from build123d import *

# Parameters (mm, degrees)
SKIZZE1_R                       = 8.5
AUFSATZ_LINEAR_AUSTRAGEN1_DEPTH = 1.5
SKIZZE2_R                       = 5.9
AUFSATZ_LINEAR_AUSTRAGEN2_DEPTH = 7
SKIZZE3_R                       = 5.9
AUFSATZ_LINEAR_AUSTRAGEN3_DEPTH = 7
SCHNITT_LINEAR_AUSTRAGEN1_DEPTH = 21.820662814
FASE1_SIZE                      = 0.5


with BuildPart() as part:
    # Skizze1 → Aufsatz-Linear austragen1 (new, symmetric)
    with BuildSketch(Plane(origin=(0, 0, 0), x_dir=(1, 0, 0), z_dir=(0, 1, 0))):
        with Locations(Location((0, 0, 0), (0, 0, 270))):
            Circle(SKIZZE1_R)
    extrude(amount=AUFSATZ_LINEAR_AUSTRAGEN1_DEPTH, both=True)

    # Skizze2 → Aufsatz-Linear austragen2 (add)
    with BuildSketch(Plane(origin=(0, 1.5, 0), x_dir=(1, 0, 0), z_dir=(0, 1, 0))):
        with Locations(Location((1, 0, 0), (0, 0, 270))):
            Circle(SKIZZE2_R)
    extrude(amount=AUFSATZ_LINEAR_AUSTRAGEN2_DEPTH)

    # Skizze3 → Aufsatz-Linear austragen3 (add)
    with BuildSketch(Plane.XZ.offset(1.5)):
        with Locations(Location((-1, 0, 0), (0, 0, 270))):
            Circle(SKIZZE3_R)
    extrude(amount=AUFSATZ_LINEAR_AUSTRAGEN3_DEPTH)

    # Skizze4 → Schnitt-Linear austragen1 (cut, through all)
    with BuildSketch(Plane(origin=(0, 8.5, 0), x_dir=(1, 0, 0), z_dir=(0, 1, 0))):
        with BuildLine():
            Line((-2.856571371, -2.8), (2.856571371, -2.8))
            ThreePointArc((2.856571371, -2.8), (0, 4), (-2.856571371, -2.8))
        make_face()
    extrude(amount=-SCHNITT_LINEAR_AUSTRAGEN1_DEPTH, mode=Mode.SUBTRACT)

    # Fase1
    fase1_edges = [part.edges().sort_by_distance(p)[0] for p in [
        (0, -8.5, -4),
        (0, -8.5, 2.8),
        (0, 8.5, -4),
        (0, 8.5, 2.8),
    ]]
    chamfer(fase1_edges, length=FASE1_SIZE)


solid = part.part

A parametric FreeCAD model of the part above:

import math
import FreeCAD as App
import Part
import Sketcher
from FreeCAD import Vector


def edges_at(feature, points):
    """Names of the edges that pass closest to the given points."""
    edges = feature.Shape.Edges
    near = lambda p: min(range(len(edges)), key=lambda i: edges[i].distToShape(Part.Vertex(*p))[0])
    return sorted({f"Edge{near(p) + 1}" for p in points})

doc = App.newDocument("Part")
body = doc.addObject("PartDesign::Body", "Body")

# Sketch on XZ plane
sketch1 = body.newObject("Sketcher::SketchObject", "Sketch")
sketch1.AttachmentSupport = (doc.getObject("XZ_Plane"), [""])
sketch1.MapMode = "FlatFace"
sketch1.addGeometry(Part.Circle(Vector(0, 0, 0), Vector(0, 0, 1), 8), False)
sketch1.addConstraint([
    Sketcher.Constraint("Coincident", 0, 3, -1, 1),
    Sketcher.Constraint("Diameter", 0, 17.0),
])
pad1 = body.newObject("PartDesign::Pad", "Pad")
pad1.Profile = sketch1
pad1.Length = 3
pad1.Midplane = True

# Sketch on XZ plane
sketch2 = body.newObject("Sketcher::SketchObject", "Sketch001")
sketch2.AttachmentSupport = (doc.getObject("XZ_Plane"), [""])
sketch2.MapMode = "FlatFace"
sketch2.AttachmentOffset = App.Placement(Vector(0, 0, -1.5), App.Rotation())
sketch2.addGeometry(Part.Circle(Vector(1, 0, 0), Vector(0, 0, 1), 6), False)
sketch2.addConstraint([
    Sketcher.Constraint("PointOnObject", 0, 3, -1),
    Sketcher.Constraint("Diameter", 0, 11.8),
    Sketcher.Constraint("DistanceX", -1, 1, 0, 3, 1.0),
])
pad2 = body.newObject("PartDesign::Pad", "Pad001")
pad2.Profile = sketch2
pad2.Length = 7
pad2.Reversed = True

# Sketch on XZ plane
sketch3 = body.newObject("Sketcher::SketchObject", "Sketch002")
sketch3.AttachmentSupport = (doc.getObject("XZ_Plane"), [""])
sketch3.MapMode = "FlatFace"
sketch3.AttachmentOffset = App.Placement(Vector(0, 0, 1.5), App.Rotation())
sketch3.addGeometry(Part.Circle(Vector(-1, 0, 0), Vector(0, 0, 1), 6), False)
sketch3.addConstraint([
    Sketcher.Constraint("PointOnObject", 0, 3, -1),
    Sketcher.Constraint("Diameter", 0, 11.8),
    Sketcher.Constraint("DistanceX", 0, 3, -1, 1, 1.0),
])
pad3 = body.newObject("PartDesign::Pad", "Pad002")
pad3.Profile = sketch3
pad3.Length = 7

# Sketch on XZ plane
sketch4 = body.newObject("Sketcher::SketchObject", "Sketch003")
sketch4.AttachmentSupport = (doc.getObject("XZ_Plane"), [""])
sketch4.MapMode = "FlatFace"
sketch4.AttachmentOffset = App.Placement(Vector(0, 0, -8.5), App.Rotation())
sketch4.addGeometry([
    Part.LineSegment(Vector(-2.9, 2.8, 0), Vector(2.9, 2.8, 0)),
    Part.ArcOfCircle(Part.Circle(Vector(0, 0, 0), Vector(0, 0, 1), 4), math.radians(136), math.radians(404)),
], False)
sketch4.addConstraint([
    Sketcher.Constraint("Coincident", 0, 1, 1, 1),
    Sketcher.Constraint("Coincident", 1, 2, 0, 2),
    Sketcher.Constraint("Horizontal", 0),
    Sketcher.Constraint("Coincident", 1, 3, -1, 1),
    Sketcher.Constraint("Radius", 1, 4.0),
    Sketcher.Constraint("DistanceY", -1, 1, 0, 1, 2.8),
])
pocket1 = body.newObject("PartDesign::Pocket", "Pocket")
pocket1.Profile = sketch4
pocket1.Type = "ThroughAll"
pocket1.Reversed = True
doc.recompute()

chamfer = body.newObject("PartDesign::Chamfer", "Chamfer")
chamfer.Base = (pocket1, edges_at(pocket1, [
    (0, -8.5, -4),
    (0, -8.5, 2.8),
    (0, 8.5, -4),
    (0, 8.5, 2.8),
]))
chamfer.Size = 0.5

doc.recompute()
